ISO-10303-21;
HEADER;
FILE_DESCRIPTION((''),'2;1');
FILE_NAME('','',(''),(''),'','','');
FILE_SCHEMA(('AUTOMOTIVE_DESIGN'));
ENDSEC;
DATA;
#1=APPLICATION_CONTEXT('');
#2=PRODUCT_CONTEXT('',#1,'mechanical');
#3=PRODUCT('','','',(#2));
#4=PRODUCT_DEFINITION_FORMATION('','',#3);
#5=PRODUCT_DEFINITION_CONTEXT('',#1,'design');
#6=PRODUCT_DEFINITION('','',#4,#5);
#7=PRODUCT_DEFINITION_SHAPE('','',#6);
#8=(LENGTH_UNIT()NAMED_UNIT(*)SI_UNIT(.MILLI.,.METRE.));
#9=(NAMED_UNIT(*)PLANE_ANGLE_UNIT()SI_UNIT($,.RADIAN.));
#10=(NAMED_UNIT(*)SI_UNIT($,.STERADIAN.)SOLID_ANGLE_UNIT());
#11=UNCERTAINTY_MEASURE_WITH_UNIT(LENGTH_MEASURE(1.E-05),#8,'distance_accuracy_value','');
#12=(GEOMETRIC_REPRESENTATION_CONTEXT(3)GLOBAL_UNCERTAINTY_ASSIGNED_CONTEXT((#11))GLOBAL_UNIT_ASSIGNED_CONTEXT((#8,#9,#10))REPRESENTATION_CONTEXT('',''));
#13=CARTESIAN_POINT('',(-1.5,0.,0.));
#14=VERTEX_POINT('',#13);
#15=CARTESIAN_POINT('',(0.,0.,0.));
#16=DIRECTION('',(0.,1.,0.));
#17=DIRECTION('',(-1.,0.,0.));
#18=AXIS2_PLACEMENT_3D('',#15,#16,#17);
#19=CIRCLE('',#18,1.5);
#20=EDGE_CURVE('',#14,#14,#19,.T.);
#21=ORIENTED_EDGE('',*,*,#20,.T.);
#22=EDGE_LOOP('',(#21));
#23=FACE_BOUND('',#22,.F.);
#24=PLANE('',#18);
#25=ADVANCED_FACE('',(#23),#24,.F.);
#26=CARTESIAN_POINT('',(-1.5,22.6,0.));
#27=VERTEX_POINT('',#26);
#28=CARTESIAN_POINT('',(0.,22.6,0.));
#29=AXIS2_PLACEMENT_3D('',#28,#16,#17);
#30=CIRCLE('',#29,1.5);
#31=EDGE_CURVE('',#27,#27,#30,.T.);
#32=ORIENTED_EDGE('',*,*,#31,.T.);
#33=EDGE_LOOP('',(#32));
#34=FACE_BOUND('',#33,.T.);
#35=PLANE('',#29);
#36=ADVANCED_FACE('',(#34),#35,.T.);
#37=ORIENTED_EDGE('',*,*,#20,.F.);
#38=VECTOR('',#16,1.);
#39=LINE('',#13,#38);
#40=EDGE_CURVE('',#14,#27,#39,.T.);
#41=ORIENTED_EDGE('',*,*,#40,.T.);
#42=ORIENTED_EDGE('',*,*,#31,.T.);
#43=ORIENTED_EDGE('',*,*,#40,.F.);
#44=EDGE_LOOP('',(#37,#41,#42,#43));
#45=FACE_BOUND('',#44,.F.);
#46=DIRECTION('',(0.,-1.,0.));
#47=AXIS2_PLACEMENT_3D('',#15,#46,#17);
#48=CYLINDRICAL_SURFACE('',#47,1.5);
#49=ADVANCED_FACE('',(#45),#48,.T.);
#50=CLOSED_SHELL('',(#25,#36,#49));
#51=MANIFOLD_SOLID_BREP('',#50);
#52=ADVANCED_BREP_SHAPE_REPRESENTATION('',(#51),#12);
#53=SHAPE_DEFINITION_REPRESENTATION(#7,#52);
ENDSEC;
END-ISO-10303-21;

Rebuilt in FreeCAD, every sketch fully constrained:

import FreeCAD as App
import Part
import Sketcher
from FreeCAD import Vector

doc = App.newDocument("Part")
body = doc.addObject("PartDesign::Body", "Body")

sketch1 = doc.addObject("Sketcher::SketchObject", "Sketch")
body.addObject(sketch1)
sketch1.AttachmentSupport = (doc.XZ_Plane, [""])
sketch1.MapMode = "FlatFace"
sketch1.addGeometry(Part.Circle(Vector(0, 0, 0), Vector(0, 0, 1), 1.5), False)
sketch1.addConstraint([
    Sketcher.Constraint("Coincident", 0, 3, -1, 1),
    Sketcher.Constraint("Diameter", 0, 3.0),
])
pad1 = doc.addObject("PartDesign::Pad", "Pad")
body.addObject(pad1)
pad1.Profile = sketch1
pad1.Length = 22.6
pad1.Reversed = True

doc.recompute()
